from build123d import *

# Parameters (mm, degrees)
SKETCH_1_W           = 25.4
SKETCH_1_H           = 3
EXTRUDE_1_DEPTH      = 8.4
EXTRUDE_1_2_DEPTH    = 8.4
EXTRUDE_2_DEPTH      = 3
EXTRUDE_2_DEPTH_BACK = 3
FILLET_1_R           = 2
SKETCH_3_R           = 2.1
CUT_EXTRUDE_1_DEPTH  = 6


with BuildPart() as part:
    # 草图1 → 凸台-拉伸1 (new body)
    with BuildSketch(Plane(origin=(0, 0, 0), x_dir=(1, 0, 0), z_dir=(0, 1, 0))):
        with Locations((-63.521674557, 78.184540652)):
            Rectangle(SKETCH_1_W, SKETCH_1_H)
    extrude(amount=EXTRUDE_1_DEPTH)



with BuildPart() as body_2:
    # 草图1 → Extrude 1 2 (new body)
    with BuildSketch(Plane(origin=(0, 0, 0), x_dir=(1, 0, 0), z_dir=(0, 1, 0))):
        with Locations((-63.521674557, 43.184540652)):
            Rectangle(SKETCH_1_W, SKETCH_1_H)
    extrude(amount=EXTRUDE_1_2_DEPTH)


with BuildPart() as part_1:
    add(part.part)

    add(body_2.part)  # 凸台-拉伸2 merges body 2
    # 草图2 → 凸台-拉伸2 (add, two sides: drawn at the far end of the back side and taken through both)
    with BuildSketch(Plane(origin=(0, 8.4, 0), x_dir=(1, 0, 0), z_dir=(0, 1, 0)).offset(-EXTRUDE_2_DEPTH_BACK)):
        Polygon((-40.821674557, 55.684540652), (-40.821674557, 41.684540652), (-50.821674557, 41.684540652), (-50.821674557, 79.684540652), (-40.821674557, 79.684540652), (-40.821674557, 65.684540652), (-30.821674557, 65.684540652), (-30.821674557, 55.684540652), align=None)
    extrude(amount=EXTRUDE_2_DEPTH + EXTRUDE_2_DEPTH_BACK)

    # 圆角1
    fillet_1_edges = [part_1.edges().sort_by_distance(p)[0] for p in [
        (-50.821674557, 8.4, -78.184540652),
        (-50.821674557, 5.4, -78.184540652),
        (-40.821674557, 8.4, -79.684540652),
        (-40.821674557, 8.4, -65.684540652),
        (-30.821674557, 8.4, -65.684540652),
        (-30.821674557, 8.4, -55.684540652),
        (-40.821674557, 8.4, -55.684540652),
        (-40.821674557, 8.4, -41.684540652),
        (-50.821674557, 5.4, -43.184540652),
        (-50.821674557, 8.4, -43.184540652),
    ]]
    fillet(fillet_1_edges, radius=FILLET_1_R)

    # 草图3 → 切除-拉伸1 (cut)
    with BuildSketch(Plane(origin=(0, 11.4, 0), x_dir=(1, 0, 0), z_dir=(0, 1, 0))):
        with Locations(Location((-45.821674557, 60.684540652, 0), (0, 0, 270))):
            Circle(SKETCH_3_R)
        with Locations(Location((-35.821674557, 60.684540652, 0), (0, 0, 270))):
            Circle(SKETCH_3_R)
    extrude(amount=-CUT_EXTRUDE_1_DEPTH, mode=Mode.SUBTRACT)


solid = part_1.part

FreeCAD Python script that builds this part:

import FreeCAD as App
import Part
import Sketcher
from FreeCAD import Vector


def edges_at(feature, points):
    """Names of the edges that pass closest to the given points."""
    edges = feature.Shape.Edges
    near = lambda p: min(range(len(edges)), key=lambda i: edges[i].distToShape(Part.Vertex(*p))[0])
    return sorted({f"Edge{near(p) + 1}" for p in points})


def add_polygon(sketch, points):
    """Adds a closed chain of lines whose ends are joined by coincident constraints."""
    first, n = sketch.GeometryCount, len(points)
    for a, b in zip(points, points[1:] + points[:1]):
        sketch.addGeometry(Part.LineSegment(App.Vector(*a, 0), App.Vector(*b, 0)), False)
    for i in range(n):
        sketch.addConstraint(Sketcher.Constraint("Coincident", first + i, 2, first + (i + 1) % n, 1))

doc = App.newDocument("Part")
params = doc.addObject("Spreadsheet::Sheet", "Params")
for row, (alias, value) in enumerate([
    ("sketch1_height", "3 mm"),
    ("sketch1_width", "25.4 mm"),
    ("pad1_length", "8.4 mm"),
    ("sketch2_height", "3 mm"),
    ("sketch2_width", "25.4 mm"),
    ("pad2_length", "8.4 mm"),
    ("sketch3_width", "10 mm"),
    ("sketch3_height", "14 mm"),
    ("pad3_length", "3 mm"),
    ("pad3_length2", "3 mm"),
    ("fillet_radius", "2 mm"),
    ("sketch4_diameter", "4.2 mm"),
    ("pocket1_length", "6 mm"),
], start=1):
    params.set(f"A{row}", alias)
    params.set(f"B{row}", "=" + value)
    params.setAlias(f"B{row}", alias)

body = doc.addObject("PartDesign::Body", "Body")

# Sketch on XZ plane
sketch1 = body.newObject("Sketcher::SketchObject", "Sketch")
sketch1.AttachmentSupport = (doc.getObject("XZ_Plane"), [""])
sketch1.MapMode = "FlatFace"
add_polygon(sketch1, [(-76.2, -79.7), (-76.2, -76.7), (-50.8, -76.7), (-50.8, -79.7)])  # lines 0-3
sketch1.addConstraint([
    Sketcher.Constraint("Vertical", 0),
    Sketcher.Constraint("Horizontal", 1),
    Sketcher.Constraint("Vertical", 2),
    Sketcher.Constraint("Horizontal", 3),
    Sketcher.Constraint("DistanceY", 0, 1, 0, 2, 3.0),
    Sketcher.Constraint("DistanceX", 1, 1, 1, 2, 25.4),
    Sketcher.Constraint("DistanceY", 0, 2, -1, 1, 76.684541),
    Sketcher.Constraint("DistanceX", 0, 2, -1, 1, 76.221675),
])
sketch1.setExpression("Constraints[8]", "Params.sketch1_height")
sketch1.setExpression("Constraints[9]", "Params.sketch1_width")
pad1 = body.newObject("PartDesign::Pad", "Pad")
pad1.Profile = sketch1
pad1.setExpression("Length", "Params.pad1_length")
pad1.Reversed = True
body2 = doc.addObject("PartDesign::Body", "Body001")

# Sketch on XZ plane
sketch2 = body2.newObject("Sketcher::SketchObject", "Sketch001")
sketch2.AttachmentSupport = (doc.getObject("XZ_Plane001"), [""])
sketch2.MapMode = "FlatFace"
add_polygon(sketch2, [(-76.2, -44.7), (-76.2, -41.7), (-50.8, -41.7), (-50.8, -44.7)])  # lines 0-3
sketch2.addConstraint([
    Sketcher.Constraint("Vertical", 0),
    Sketcher.Constraint("Horizontal", 1),
    Sketcher.Constraint("Vertical", 2),
    Sketcher.Constraint("Horizontal", 3),
    Sketcher.Constraint("DistanceY", 0, 1, 0, 2, 3.0),
    Sketcher.Constraint("DistanceX", 1, 1, 1, 2, 25.4),
    Sketcher.Constraint("DistanceY", 0, 2, -1, 1, 41.684541),
    Sketcher.Constraint("DistanceX", 0, 2, -1, 1, 76.221675),
])
sketch2.setExpression("Constraints[8]", "Params.sketch2_height")
sketch2.setExpression("Constraints[9]", "Params.sketch2_width")
pad2 = body2.newObject("PartDesign::Pad", "Pad001")
pad2.Profile = sketch2
pad2.setExpression("Length", "Params.pad2_length")
pad2.Reversed = True
body.AllowCompound = True
doc.recompute()

boolean = body.newObject("PartDesign::Boolean", "Boolean")
boolean.Type = "Fuse"
boolean.addObjects([body2])

# Sketch on XZ plane
sketch3 = body.newObject("Sketcher::SketchObject", "Sketch002")
sketch3.AttachmentSupport = (doc.getObject("XZ_Plane"), [""])
sketch3.MapMode = "FlatFace"
sketch3.AttachmentOffset = App.Placement(Vector(0, 0, -8.4), App.Rotation())
add_polygon(sketch3, [(-41, -42), (-41, -56), (-31, -56), (-31, -66), (-41, -66), (-41, -80), (-51, -80), (-51, -42)])  # lines 0-7
sketch3.addConstraint([
    Sketcher.Constraint("Vertical", 0),
    Sketcher.Constraint("Horizontal", 1),
    Sketcher.Constraint("Vertical", 2),
    Sketcher.Constraint("Horizontal", 3),
    Sketcher.Constraint("Vertical", 4),
    Sketcher.Constraint("Horizontal", 5),
    Sketcher.Constraint("Vertical", 6),
    Sketcher.Constraint("Horizontal", 7),
    Sketcher.Constraint("Vertical", 0, 2, 3, 2),
    Sketcher.Constraint("Equal", 3, 5),
    Sketcher.Constraint("Equal", 7, 2),
    Sketcher.Constraint("Equal", 0, 4),
    Sketcher.Constraint("DistanceX", 1, 1, 1, 2, 10.0),
    Sketcher.Constraint("DistanceY", 0, 2, 0, 1, 14.0),
    Sketcher.Constraint("DistanceY", 0, 2, -1, 1, 55.684541),
    Sketcher.Constraint("DistanceX", 0, 2, -1, 1, 40.821675),
])
sketch3.setExpression("Constraints[20]", "Params.sketch3_width")
sketch3.setExpression("Constraints[21]", "Params.sketch3_height")
pad3 = body.newObject("PartDesign::Pad", "Pad002")
pad3.Profile = sketch3
pad3.Type = "TwoLengths"
pad3.setExpression("Length", "Params.pad3_length")
pad3.setExpression("Length2", "Params.pad3_length2")
pad3.Reversed = True
doc.recompute()

fillet = body.newObject("PartDesign::Fillet", "Fillet")
fillet.Base = (pad3, edges_at(pad3, [
    (-50.822, 8.4, -78.185),
    (-50.822, 5.4, -78.185),
    (-40.822, 8.4, -79.685),
    (-40.822, 8.4, -65.685),
    (-30.822, 8.4, -65.685),
    (-30.822, 8.4, -55.685),
    (-40.822, 8.4, -55.685),
    (-40.822, 8.4, -41.685),
    (-50.822, 5.4, -43.185),
    (-50.822, 8.4, -43.185),
]))
fillet.setExpression("Radius", "Params.fillet_radius")

# Sketch on XZ plane
sketch4 = body.newObject("Sketcher::SketchObject", "Sketch003")
sketch4.AttachmentSupport = (doc.getObject("XZ_Plane"), [""])
sketch4.MapMode = "FlatFace"
sketch4.AttachmentOffset = App.Placement(Vector(0, 0, -11.4), App.Rotation())
sketch4.addGeometry([
    Part.Circle(Vector(-45.8, -60.7, 0), Vector(0, 0, 1), 2.1),
    Part.Circle(Vector(-35.8, -60.7, 0), Vector(0, 0, 1), 2.1),
], False)
sketch4.addConstraint([
    Sketcher.Constraint("Equal", 0, 1),
    Sketcher.Constraint("Horizontal", 0, 3, 1, 3),
    Sketcher.Constraint("Diameter", 0, 4.2),
    Sketcher.Constraint("DistanceX", 0, 3, 1, 3, 10.0),
    Sketcher.Constraint("DistanceY", 0, 3, -1, 1, 60.684541),
    Sketcher.Constraint("DistanceX", 0, 3, -1, 1, 45.821675),
])
sketch4.setExpression("Constraints[2]", "Params.sketch4_diameter")
pocket1 = body.newObject("PartDesign::Pocket", "Pocket")
pocket1.Profile = sketch4
pocket1.setExpression("Length", "Params.pocket1_length")
pocket1.Reversed = True

doc.recompute()
